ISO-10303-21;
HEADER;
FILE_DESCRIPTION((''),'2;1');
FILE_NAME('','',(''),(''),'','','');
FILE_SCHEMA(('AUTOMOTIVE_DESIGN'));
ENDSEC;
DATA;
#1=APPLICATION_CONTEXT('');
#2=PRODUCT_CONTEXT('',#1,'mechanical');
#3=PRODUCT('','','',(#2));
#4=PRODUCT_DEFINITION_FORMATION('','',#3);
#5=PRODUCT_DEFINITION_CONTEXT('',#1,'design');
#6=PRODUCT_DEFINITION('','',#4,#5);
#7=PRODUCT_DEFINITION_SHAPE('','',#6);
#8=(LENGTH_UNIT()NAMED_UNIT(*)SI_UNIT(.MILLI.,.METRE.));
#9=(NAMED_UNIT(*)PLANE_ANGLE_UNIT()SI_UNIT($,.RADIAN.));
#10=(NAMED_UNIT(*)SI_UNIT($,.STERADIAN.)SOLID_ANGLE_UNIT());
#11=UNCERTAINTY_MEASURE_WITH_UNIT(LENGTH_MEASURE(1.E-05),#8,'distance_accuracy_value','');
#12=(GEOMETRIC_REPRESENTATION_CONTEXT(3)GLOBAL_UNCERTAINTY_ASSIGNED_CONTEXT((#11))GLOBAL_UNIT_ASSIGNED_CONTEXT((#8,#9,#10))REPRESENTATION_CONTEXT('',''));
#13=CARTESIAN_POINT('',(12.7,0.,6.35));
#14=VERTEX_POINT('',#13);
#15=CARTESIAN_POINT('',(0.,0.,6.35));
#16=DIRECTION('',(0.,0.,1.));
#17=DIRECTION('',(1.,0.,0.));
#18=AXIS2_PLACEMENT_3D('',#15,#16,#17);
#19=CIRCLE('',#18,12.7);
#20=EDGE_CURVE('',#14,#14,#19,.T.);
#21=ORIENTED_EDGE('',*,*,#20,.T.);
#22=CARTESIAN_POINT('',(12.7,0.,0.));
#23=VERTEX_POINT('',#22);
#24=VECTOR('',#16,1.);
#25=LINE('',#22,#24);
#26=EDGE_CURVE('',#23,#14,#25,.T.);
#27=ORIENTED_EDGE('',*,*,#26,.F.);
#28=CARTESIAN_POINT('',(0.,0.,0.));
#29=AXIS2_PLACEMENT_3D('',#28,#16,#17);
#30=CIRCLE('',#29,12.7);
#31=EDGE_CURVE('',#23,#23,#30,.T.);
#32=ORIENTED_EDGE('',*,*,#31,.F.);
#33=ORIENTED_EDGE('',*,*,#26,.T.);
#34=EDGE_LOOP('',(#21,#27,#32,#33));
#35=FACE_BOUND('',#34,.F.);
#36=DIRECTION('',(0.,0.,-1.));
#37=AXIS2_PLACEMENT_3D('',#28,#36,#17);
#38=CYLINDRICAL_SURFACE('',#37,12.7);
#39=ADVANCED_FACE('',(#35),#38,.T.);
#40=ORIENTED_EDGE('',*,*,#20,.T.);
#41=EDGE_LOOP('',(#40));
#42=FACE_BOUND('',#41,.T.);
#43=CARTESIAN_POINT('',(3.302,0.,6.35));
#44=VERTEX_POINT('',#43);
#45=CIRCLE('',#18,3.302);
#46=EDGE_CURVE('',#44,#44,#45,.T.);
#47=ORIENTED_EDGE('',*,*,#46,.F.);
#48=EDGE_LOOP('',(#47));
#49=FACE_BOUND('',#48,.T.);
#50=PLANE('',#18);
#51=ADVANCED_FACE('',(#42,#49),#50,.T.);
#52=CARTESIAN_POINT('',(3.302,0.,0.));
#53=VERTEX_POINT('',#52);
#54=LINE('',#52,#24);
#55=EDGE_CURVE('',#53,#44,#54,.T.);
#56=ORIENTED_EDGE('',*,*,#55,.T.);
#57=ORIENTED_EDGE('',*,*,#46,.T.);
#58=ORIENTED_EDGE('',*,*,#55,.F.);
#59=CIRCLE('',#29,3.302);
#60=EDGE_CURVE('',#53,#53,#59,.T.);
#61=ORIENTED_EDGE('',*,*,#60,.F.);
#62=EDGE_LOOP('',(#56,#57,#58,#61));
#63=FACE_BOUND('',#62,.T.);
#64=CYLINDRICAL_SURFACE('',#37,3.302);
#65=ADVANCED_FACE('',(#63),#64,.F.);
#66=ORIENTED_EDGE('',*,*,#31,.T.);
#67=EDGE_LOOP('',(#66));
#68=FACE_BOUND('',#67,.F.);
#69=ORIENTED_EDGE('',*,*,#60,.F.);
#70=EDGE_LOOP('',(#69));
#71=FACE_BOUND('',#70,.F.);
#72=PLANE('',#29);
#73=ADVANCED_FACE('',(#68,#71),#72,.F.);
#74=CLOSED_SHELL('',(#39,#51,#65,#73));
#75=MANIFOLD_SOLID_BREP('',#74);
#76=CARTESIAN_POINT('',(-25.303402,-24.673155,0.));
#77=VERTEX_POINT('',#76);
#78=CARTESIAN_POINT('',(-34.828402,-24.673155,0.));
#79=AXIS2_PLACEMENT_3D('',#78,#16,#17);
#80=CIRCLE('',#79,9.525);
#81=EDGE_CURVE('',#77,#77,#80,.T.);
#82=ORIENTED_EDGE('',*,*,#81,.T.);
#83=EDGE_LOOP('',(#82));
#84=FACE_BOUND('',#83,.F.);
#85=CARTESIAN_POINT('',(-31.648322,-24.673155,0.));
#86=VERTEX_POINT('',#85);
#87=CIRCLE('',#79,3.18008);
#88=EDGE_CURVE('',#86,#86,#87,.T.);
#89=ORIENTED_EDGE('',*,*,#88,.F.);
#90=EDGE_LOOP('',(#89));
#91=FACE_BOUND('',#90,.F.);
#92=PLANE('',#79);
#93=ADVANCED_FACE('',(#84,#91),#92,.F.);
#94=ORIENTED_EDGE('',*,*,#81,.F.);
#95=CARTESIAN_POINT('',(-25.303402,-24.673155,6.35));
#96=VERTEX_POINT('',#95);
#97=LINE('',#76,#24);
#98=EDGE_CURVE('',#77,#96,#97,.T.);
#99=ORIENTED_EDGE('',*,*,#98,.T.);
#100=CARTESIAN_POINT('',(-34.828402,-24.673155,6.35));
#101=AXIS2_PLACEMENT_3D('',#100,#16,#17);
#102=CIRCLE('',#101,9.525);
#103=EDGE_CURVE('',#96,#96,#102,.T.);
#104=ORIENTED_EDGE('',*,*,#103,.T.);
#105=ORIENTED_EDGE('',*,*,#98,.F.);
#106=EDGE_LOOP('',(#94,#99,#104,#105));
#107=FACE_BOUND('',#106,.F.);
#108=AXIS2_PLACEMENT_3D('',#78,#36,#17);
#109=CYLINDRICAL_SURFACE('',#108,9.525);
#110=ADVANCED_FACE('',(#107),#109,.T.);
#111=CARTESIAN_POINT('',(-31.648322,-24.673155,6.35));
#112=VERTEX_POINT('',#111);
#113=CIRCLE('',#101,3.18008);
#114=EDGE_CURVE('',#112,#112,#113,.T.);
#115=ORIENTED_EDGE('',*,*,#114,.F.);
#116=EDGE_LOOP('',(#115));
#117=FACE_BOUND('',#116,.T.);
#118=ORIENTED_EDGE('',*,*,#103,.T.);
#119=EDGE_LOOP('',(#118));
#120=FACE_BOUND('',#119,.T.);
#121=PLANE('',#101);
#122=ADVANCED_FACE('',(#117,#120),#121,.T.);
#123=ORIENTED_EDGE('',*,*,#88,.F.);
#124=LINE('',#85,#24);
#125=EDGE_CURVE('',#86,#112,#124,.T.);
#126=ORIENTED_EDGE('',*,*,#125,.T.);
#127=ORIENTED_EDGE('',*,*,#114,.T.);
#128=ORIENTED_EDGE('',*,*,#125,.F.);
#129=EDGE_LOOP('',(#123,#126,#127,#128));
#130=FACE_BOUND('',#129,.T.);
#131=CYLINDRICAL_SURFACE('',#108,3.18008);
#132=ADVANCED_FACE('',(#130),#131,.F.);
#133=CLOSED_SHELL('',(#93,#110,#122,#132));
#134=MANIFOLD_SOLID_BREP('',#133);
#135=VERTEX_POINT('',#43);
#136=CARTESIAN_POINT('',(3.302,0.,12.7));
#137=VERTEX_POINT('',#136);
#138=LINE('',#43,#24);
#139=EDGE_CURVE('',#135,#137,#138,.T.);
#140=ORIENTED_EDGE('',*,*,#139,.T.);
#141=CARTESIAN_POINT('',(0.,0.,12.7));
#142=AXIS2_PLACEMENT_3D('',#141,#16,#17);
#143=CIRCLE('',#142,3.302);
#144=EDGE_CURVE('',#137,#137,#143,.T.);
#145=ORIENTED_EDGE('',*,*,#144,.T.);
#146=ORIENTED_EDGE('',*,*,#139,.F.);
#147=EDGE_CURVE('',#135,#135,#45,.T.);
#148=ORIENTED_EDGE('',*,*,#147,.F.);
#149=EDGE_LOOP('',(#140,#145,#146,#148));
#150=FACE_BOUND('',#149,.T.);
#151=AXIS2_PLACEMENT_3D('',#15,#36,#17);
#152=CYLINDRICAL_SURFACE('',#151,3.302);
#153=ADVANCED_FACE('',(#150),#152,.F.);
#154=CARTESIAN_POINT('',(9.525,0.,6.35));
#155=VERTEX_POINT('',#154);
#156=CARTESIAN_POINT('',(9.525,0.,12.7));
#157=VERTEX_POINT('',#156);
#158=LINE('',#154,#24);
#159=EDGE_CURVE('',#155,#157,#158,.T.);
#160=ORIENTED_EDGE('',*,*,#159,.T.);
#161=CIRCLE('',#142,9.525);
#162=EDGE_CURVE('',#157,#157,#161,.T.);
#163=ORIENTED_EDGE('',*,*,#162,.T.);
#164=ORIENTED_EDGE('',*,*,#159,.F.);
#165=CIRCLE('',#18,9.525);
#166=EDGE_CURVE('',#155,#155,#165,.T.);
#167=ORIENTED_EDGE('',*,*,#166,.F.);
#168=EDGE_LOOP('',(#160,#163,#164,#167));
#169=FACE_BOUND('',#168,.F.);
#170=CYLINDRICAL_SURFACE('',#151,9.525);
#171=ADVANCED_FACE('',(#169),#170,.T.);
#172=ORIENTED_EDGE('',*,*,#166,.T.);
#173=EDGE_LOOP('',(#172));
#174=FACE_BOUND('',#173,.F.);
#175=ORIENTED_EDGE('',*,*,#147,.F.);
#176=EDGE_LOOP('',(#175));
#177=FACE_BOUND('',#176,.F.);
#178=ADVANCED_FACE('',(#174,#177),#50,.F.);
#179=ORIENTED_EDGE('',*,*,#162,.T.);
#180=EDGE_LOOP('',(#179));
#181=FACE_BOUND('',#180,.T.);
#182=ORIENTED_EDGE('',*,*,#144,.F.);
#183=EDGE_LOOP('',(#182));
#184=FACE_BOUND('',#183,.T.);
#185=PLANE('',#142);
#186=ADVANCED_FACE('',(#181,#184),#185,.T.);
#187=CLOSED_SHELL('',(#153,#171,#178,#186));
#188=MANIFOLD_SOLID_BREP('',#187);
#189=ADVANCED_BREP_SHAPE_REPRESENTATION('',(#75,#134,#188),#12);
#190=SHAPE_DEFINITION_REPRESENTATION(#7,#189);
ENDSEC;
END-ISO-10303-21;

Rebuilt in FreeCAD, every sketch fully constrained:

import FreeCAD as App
import Part
import Sketcher

V = App.Vector
Q = App.Units.Quantity

doc = App.newDocument("Part")
body = doc.addObject("PartDesign::Body", "Body")

sketch1 = doc.addObject("Sketcher::SketchObject", "Sketch")
body.addObject(sketch1)
sketch1.AttachmentSupport = (doc.XY_Plane, [""])
sketch1.MapMode = "FlatFace"
sketch1.addGeometry([
    Part.Circle(V(0, 0, 0), V(0, 0, 1), 12.7),
    Part.Circle(V(0, 0, 0), V(0, 0, 1), 3.302),
], False)
sketch1.addConstraint([
    Sketcher.Constraint("Coincident", 0, 3, -1, 1),
    Sketcher.Constraint("Coincident", 1, 3, -1, 1),
    Sketcher.Constraint("Diameter", 0, Q("1 in")),
    Sketcher.Constraint("Diameter", 1, Q("0.26 in")),
])
pad1 = doc.addObject("PartDesign::Pad", "Pad")
body.addObject(pad1)
pad1.Profile = sketch1
pad1.Length = Q("0.25 in")
body2 = doc.addObject("PartDesign::Body", "Body001")

sketch2 = doc.addObject("Sketcher::SketchObject", "Sketch001")
body2.addObject(sketch2)
sketch2.AttachmentSupport = (doc.getObject("XY_Plane001"), [""])
sketch2.MapMode = "FlatFace"
sketch2.addGeometry([
    Part.Circle(V(-34.828402, -24.673155, 0), V(0, 0, 1), 9.525),
    Part.Circle(V(-34.828402, -24.673155, 0), V(0, 0, 1), 3.18008),
], False)
sketch2.addConstraint([
    Sketcher.Constraint("Coincident", 1, 3, 0, 3),
    Sketcher.Constraint("Diameter", 0, Q("0.75 in")),
    Sketcher.Constraint("Diameter", 1, Q("0.2504 in")),
    Sketcher.Constraint("DistanceX", 0, 3, -1, 1, 34.828402),
    Sketcher.Constraint("DistanceY", 0, 3, -1, 1, 24.673155),
])
pad2 = doc.addObject("PartDesign::Pad", "Pad001")
body2.addObject(pad2)
pad2.Profile = sketch2
pad2.Length = Q("0.25 in")
body3 = doc.addObject("PartDesign::Body", "Body002")

sketch3 = doc.addObject("Sketcher::SketchObject", "Sketch002")
body3.addObject(sketch3)
sketch3.AttachmentSupport = (doc.getObject("XY_Plane002"), [""])
sketch3.MapMode = "FlatFace"
sketch3.AttachmentOffset = App.Placement(V(0, 0, 0.25 * 25.4), App.Rotation())
sketch3.addGeometry([
    Part.Circle(V(0, 0, 0), V(0, 0, 1), 9.525),
    Part.Circle(V(0, 0, 0), V(0, 0, 1), 3.302),
], False)
sketch3.addConstraint([
    Sketcher.Constraint("Coincident", 0, 3, -1, 1),
    Sketcher.Constraint("Coincident", 1, 3, -1, 1),
    Sketcher.Constraint("Diameter", 0, Q("0.75 in")),
    Sketcher.Constraint("Diameter", 1, Q("0.26 in")),
])
pad3 = doc.addObject("PartDesign::Pad", "Pad002")
body3.addObject(pad3)
pad3.Profile = sketch3
pad3.Length = Q("0.25 in")

doc.recompute()
